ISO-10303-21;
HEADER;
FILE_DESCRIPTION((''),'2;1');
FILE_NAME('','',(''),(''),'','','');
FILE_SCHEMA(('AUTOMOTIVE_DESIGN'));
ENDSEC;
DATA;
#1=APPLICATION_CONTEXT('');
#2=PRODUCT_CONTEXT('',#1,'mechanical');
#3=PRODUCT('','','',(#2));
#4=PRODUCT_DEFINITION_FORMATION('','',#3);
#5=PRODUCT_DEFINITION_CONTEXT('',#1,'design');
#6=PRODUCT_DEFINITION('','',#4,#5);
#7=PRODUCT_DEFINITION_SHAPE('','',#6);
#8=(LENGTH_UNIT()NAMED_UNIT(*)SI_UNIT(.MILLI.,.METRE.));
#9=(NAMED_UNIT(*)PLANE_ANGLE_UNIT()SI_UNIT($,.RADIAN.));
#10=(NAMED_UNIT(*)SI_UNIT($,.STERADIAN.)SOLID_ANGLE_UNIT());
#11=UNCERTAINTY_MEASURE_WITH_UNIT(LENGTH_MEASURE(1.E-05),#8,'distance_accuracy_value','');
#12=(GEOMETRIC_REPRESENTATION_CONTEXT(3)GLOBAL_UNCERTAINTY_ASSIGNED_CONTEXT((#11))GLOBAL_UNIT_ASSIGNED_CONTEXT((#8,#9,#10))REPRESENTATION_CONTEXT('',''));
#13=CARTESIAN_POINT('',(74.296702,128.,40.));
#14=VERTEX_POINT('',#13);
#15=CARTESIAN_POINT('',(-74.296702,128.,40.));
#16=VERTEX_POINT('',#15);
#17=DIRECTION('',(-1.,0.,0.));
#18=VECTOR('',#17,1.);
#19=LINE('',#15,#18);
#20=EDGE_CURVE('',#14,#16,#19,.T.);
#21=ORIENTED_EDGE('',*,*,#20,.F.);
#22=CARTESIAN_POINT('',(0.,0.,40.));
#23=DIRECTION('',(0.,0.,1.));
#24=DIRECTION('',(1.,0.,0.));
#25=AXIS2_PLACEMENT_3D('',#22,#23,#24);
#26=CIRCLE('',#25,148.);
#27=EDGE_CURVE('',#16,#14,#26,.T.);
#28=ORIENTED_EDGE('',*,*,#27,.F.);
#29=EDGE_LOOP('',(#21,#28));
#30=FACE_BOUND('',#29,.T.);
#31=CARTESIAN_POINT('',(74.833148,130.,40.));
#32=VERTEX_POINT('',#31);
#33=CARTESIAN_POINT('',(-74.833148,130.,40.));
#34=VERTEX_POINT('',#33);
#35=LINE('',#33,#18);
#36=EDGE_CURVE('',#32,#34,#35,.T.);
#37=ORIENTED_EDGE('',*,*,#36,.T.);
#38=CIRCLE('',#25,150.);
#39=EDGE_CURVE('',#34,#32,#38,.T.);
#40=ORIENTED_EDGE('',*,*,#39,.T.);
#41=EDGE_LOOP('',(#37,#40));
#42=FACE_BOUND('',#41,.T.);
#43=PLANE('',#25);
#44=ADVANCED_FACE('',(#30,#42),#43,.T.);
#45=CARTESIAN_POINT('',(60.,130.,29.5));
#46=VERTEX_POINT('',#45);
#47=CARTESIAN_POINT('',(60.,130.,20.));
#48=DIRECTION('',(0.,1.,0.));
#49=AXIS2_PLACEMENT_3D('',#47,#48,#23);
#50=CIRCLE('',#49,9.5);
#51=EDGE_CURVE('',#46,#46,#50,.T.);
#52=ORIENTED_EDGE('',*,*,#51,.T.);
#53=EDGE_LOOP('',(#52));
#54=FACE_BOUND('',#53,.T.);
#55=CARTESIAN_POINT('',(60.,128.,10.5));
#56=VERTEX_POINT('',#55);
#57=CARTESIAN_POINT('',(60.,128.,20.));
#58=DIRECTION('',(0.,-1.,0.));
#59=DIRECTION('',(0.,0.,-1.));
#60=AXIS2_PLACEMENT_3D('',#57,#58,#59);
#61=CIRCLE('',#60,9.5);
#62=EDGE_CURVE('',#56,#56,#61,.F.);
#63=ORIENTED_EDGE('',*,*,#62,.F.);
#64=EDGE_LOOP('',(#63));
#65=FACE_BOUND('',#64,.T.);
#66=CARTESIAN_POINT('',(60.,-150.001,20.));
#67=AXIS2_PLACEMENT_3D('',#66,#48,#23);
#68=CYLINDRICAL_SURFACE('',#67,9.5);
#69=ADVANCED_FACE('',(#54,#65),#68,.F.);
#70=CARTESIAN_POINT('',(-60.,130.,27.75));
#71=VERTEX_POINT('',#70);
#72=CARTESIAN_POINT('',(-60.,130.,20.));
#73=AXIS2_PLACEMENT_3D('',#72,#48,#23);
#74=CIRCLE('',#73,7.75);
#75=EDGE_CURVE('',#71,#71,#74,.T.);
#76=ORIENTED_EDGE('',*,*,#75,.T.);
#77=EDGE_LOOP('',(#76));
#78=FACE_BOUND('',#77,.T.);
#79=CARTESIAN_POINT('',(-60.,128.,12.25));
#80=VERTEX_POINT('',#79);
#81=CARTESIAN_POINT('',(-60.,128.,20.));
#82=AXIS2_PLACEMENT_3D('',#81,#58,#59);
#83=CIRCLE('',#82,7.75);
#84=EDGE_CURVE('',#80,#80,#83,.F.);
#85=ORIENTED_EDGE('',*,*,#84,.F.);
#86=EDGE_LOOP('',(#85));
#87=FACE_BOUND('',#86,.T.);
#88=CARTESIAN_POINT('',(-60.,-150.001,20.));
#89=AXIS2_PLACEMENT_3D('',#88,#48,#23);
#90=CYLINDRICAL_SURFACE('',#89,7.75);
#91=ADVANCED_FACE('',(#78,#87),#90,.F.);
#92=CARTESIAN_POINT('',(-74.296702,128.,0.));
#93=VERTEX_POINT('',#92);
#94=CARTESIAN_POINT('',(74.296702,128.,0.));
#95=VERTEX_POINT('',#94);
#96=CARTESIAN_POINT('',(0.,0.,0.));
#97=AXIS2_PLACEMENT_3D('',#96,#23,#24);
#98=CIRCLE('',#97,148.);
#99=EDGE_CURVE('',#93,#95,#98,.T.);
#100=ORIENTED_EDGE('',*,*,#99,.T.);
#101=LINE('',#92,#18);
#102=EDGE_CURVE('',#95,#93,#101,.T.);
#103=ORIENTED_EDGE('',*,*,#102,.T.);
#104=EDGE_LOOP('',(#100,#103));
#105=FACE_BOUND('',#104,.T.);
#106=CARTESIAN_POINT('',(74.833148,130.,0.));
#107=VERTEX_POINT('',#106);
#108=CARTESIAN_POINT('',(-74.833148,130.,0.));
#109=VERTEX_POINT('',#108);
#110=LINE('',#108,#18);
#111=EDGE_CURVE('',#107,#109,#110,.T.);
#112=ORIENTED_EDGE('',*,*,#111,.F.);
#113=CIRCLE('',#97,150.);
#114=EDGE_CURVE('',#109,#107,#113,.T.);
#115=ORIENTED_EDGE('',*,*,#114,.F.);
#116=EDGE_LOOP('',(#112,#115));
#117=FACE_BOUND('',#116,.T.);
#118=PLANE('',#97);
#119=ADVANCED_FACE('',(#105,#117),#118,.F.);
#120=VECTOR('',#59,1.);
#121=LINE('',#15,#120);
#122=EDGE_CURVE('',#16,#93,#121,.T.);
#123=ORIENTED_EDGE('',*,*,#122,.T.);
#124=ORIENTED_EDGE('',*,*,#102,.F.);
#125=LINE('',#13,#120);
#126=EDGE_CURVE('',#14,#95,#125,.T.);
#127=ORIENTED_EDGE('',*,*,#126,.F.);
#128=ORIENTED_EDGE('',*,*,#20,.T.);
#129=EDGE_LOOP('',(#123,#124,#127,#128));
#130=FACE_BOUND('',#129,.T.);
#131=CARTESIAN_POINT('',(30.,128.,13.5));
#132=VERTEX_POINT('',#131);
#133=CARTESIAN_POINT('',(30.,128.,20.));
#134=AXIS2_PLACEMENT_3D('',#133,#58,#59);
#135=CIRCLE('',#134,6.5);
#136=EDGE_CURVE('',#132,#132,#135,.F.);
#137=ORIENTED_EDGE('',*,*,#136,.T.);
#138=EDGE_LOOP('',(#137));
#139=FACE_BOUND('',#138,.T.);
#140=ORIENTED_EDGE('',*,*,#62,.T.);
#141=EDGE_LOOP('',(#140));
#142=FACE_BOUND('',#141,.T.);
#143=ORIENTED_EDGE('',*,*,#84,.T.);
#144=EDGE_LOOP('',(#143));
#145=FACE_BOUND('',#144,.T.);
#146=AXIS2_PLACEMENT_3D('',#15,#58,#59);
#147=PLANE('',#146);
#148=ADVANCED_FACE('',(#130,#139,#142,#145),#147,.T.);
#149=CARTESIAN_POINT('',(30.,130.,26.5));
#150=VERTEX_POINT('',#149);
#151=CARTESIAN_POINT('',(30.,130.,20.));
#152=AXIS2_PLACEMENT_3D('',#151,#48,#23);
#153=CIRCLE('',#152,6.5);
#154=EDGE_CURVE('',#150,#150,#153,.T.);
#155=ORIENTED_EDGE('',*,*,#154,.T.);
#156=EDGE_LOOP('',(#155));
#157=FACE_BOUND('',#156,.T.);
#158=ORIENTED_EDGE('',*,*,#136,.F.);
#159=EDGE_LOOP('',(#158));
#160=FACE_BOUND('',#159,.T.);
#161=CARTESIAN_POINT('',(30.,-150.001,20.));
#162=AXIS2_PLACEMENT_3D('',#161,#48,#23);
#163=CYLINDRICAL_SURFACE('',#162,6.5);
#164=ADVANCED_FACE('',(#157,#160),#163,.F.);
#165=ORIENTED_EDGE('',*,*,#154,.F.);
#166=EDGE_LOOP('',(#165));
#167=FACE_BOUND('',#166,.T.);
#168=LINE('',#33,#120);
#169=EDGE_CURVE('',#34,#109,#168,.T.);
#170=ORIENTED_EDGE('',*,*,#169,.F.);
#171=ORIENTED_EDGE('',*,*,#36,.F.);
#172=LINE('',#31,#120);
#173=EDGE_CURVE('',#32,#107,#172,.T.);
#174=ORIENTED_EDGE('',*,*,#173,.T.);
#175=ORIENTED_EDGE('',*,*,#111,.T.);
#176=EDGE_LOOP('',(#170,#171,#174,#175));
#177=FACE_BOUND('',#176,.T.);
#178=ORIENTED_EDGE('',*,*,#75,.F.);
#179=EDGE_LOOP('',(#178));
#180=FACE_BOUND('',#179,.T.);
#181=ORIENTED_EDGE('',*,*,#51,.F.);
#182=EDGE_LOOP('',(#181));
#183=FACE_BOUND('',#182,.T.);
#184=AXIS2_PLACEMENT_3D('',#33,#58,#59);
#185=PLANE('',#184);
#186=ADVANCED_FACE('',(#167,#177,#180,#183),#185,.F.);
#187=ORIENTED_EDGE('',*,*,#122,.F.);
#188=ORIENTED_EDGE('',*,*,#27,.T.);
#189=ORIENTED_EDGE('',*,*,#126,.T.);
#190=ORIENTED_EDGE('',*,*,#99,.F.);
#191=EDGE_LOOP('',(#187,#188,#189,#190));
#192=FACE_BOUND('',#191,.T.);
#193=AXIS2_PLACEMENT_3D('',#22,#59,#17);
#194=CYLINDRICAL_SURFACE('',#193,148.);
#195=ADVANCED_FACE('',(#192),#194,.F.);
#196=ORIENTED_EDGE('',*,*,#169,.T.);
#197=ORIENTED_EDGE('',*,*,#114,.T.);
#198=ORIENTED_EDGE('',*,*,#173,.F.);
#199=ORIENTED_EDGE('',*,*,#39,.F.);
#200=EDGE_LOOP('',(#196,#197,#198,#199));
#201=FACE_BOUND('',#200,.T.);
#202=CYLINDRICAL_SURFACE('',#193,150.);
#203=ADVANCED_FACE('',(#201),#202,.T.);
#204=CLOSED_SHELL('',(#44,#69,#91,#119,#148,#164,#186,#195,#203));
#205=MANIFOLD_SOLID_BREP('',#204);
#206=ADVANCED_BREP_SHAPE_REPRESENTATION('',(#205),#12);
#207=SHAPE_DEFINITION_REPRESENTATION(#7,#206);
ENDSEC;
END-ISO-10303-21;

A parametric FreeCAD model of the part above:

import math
import FreeCAD as App
import Part
import Sketcher

V = App.Vector

doc = App.newDocument("Part")
body = doc.addObject("PartDesign::Body", "Body")

# Sketch on XY plane
sketch1 = body.newObject("Sketcher::SketchObject", "Sketch")
sketch1.AttachmentSupport = (doc.getObject("XY_Plane"), [""])
sketch1.MapMode = "FlatFace"
sketch1.addGeometry([
    Part.LineSegment(V(75, 130, 0), V(-75, 130, 0)),
    Part.ArcOfCircle(Part.Circle(V(0, 0, 0), V(0, 0, 1), 150), math.radians(120), math.radians(420)),
    Part.LineSegment(V(-74, 128, 0), V(74, 128, 0)),
    Part.ArcOfCircle(Part.Circle(V(0, 0, 0), V(0, 0, 1), 148), math.radians(120), math.radians(420)),
], False)
sketch1.addConstraint([
    Sketcher.Constraint("Coincident", 0, 1, 1, 2),
    Sketcher.Constraint("Coincident", 1, 1, 0, 2),
    Sketcher.Constraint("Coincident", 2, 1, 3, 1),
    Sketcher.Constraint("Coincident", 3, 2, 2, 2),
    Sketcher.Constraint("Horizontal", 0),
    Sketcher.Constraint("Horizontal", 2),
    Sketcher.Constraint("Coincident", 1, 3, -1, 1),
    Sketcher.Constraint("Coincident", 3, 3, -1, 1),
    Sketcher.Constraint("Radius", 1, 150.0),
    Sketcher.Constraint("Radius", 3, 148.0),
    Sketcher.Constraint("DistanceY", -1, 1, 0, 1, 130.0),
    Sketcher.Constraint("DistanceY", -1, 1, 2, 1, 128.0),
])
pad1 = body.newObject("PartDesign::Pad", "Pad")
pad1.Profile = sketch1
pad1.Length = 40

# Sketch on XZ plane
sketch2 = body.newObject("Sketcher::SketchObject", "Sketch001")
sketch2.AttachmentSupport = (doc.getObject("XZ_Plane"), [""])
sketch2.MapMode = "FlatFace"
sketch2.AttachmentOffset = App.Placement(V(0, 0, -130), App.Rotation())
sketch2.addGeometry(Part.Circle(V(60, 20, 0), V(0, 0, 1), 10), False)
sketch2.addConstraint([
    Sketcher.Constraint("Diameter", 0, 19.0),
    Sketcher.Constraint("DistanceX", -1, 1, 0, 3, 60.0),
    Sketcher.Constraint("DistanceY", -1, 1, 0, 3, 20.0),
])
pocket1 = body.newObject("PartDesign::Pocket", "Pocket")
pocket1.Profile = sketch2
pocket1.Type = "UpToFirst"
pocket1.Reversed = True

# Sketch on XZ plane
sketch3 = body.newObject("Sketcher::SketchObject", "Sketch002")
sketch3.AttachmentSupport = (doc.getObject("XZ_Plane"), [""])
sketch3.MapMode = "FlatFace"
sketch3.AttachmentOffset = App.Placement(V(0, 0, -130), App.Rotation())
sketch3.addGeometry(Part.Circle(V(-60, 20, 0), V(0, 0, 1), 8), False)
sketch3.addConstraint([
    Sketcher.Constraint("Diameter", 0, 15.5),
    Sketcher.Constraint("DistanceX", 0, 3, -1, 1, 60.0),
    Sketcher.Constraint("DistanceY", -1, 1, 0, 3, 20.0),
])
pocket2 = body.newObject("PartDesign::Pocket", "Pocket001")
pocket2.Profile = sketch3
pocket2.Type = "UpToFirst"
pocket2.Reversed = True

# Sketch on XZ plane
sketch4 = body.newObject("Sketcher::SketchObject", "Sketch003")
sketch4.AttachmentSupport = (doc.getObject("XZ_Plane"), [""])
sketch4.MapMode = "FlatFace"
sketch4.AttachmentOffset = App.Placement(V(0, 0, -130), App.Rotation())
sketch4.addGeometry(Part.Circle(V(30, 20, 0), V(0, 0, 1), 6), False)
sketch4.addConstraint([
    Sketcher.Constraint("Diameter", 0, 13.0),
    Sketcher.Constraint("DistanceX", -1, 1, 0, 3, 30.0),
    Sketcher.Constraint("DistanceY", -1, 1, 0, 3, 20.0),
])
pocket3 = body.newObject("PartDesign::Pocket", "Pocket002")
pocket3.Profile = sketch4
pocket3.Type = "UpToFirst"
pocket3.Reversed = True

doc.recompute()
